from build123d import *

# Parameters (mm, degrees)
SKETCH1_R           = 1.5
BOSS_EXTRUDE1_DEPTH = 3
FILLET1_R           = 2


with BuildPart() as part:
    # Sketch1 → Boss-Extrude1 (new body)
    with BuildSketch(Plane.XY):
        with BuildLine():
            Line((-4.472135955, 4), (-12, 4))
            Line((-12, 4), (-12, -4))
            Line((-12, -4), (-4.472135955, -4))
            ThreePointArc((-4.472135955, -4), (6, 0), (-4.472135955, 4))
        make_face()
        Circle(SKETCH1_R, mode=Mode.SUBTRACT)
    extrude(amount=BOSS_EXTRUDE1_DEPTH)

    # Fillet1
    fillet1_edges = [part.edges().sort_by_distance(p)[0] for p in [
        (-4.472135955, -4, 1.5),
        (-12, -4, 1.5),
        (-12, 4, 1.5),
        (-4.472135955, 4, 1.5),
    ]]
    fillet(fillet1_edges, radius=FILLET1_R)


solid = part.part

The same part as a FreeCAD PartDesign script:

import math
import FreeCAD as App
import Part
import Sketcher

V = App.Vector


def edges_at(feature, points):
    """Names of the edges that pass closest to the given points."""
    edges = feature.Shape.Edges
    near = lambda p: min(range(len(edges)), key=lambda i: edges[i].distToShape(Part.Vertex(*p))[0])
    return sorted({f"Edge{near(p) + 1}" for p in points})

doc = App.newDocument("Part")
body = doc.addObject("PartDesign::Body", "Body")

sketch1 = body.newObject("Sketcher::SketchObject", "Sketch")
sketch1.AttachmentSupport = (doc.getObject("XY_Plane"), [""])
sketch1.MapMode = "FlatFace"
sketch1.addGeometry(Part.LineSegment(V(-4.472136, 4, 0), V(-12, 4, 0)), False)
sketch1.addGeometry(Part.LineSegment(V(-12, 4, 0), V(-12, -4, 0)), False)
sketch1.addGeometry(Part.LineSegment(V(-12, -4, 0), V(-4.472136, -4, 0)), False)
sketch1.addGeometry(Part.ArcOfCircle(Part.Circle(V(0, 0, 0), V(0, 0, 1), 6), math.radians(-138.189685), math.radians(138.189685)), False)
sketch1.addGeometry(Part.Circle(V(0, 0, 0), V(0, 0, 1), 1.5), False)
sketch1.addConstraint(Sketcher.Constraint("Coincident", 0, 2, 1, 1))
sketch1.addConstraint(Sketcher.Constraint("Coincident", 1, 2, 2, 1))
sketch1.addConstraint(Sketcher.Constraint("Coincident", 2, 2, 3, 1))
sketch1.addConstraint(Sketcher.Constraint("Coincident", 3, 2, 0, 1))
sketch1.addConstraint(Sketcher.Constraint("Horizontal", 0))
sketch1.addConstraint(Sketcher.Constraint("Vertical", 1))
sketch1.addConstraint(Sketcher.Constraint("Horizontal", 2))
sketch1.addConstraint(Sketcher.Constraint("Coincident", 3, 3, -1, 1))
sketch1.addConstraint(Sketcher.Constraint("Coincident", 4, 3, -1, 1))
sketch1.addConstraint(Sketcher.Constraint("Vertical", 2, 2, 3, 2))
sketch1.addConstraint(Sketcher.Constraint("Diameter", 4, 3.0))
sketch1.addConstraint(Sketcher.Constraint("Radius", 3, 6.0))
sketch1.addConstraint(Sketcher.Constraint("DistanceY", 1, 2, 1, 1, 8.0))
sketch1.addConstraint(Sketcher.Constraint("DistanceX", 0, 2, -1, 1, 12.0))
pad1 = body.newObject("PartDesign::Pad", "Pad")
pad1.Profile = sketch1
pad1.Length = 3
doc.recompute()

fillet = body.newObject("PartDesign::Fillet", "Fillet")
fillet.Base = (pad1, edges_at(pad1, [
    (-4.472, -4, 1.5),
    (-12, -4, 1.5),
    (-12, 4, 1.5),
    (-4.472, 4, 1.5),
]))
fillet.Radius = 2

doc.recompute()
